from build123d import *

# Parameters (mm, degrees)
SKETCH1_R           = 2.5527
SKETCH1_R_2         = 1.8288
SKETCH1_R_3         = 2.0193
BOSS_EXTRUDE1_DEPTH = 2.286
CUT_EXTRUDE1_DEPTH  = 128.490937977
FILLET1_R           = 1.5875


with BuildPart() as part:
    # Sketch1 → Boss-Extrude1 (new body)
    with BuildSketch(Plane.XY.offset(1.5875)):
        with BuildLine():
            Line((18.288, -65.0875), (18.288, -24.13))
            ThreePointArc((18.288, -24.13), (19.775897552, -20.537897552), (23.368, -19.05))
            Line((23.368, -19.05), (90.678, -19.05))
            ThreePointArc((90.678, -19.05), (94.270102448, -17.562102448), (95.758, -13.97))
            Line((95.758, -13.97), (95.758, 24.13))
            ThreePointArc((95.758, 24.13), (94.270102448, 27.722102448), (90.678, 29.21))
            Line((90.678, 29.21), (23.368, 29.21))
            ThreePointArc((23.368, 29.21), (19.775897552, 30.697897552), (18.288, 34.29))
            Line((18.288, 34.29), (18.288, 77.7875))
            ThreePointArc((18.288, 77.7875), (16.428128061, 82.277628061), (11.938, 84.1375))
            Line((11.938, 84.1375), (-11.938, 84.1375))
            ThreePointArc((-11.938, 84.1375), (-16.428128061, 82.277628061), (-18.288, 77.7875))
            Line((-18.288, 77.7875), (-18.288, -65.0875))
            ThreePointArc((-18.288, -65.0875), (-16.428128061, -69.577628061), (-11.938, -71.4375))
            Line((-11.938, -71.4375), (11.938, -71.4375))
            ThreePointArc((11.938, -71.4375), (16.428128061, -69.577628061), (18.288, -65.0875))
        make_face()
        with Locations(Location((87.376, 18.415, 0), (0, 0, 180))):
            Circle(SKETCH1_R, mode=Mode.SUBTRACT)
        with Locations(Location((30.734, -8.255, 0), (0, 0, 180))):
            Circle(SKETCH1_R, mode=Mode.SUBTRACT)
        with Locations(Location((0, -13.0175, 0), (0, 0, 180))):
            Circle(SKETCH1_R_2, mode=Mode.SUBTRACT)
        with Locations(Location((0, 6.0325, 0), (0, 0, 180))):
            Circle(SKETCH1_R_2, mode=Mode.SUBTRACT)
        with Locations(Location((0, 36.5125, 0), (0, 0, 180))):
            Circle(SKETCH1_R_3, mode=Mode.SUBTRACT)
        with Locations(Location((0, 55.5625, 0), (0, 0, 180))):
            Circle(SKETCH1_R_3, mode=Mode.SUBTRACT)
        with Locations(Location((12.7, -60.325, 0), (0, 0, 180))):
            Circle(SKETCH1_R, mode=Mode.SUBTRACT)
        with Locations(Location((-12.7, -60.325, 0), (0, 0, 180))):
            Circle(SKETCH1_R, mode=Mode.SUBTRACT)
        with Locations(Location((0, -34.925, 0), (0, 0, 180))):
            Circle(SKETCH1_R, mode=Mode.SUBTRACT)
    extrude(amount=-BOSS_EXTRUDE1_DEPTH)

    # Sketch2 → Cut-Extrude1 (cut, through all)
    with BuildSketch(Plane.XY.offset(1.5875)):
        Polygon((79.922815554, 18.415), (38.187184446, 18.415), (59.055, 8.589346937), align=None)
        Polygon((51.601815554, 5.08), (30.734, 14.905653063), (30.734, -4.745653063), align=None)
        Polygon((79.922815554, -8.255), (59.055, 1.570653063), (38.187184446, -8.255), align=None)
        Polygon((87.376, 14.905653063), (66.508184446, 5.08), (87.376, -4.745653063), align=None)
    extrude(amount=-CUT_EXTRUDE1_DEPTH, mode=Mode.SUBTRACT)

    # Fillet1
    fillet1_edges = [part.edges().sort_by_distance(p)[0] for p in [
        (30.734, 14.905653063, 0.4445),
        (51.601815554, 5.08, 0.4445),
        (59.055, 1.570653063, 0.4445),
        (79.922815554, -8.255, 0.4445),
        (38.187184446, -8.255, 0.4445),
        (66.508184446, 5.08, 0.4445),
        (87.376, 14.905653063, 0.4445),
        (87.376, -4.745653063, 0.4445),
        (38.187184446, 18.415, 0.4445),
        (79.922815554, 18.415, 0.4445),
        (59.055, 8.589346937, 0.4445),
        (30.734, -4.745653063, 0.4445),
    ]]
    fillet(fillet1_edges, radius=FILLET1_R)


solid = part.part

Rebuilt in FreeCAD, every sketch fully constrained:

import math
import FreeCAD as App
import Part
import Sketcher
Q = App.Units.Quantity


def edges_at(feature, points):
    """Names of the edges that pass closest to the given points."""
    edges = feature.Shape.Edges
    near = lambda p: min(range(len(edges)), key=lambda i: edges[i].distToShape(Part.Vertex(*p))[0])
    return sorted({f"Edge{near(p) + 1}" for p in points})


def add_polygon(sketch, points):
    """Adds a closed chain of lines whose ends are joined by coincident constraints."""
    first, n = sketch.GeometryCount, len(points)
    for a, b in zip(points, points[1:] + points[:1]):
        sketch.addGeometry(Part.LineSegment(App.Vector(*a, 0), App.Vector(*b, 0)), False)
    for i in range(n):
        sketch.addConstraint(Sketcher.Constraint("Coincident", first + i, 2, first + (i + 1) % n, 1))

doc = App.newDocument("Part")
body = doc.addObject("PartDesign::Body", "Body")

sketch1 = doc.addObject("Sketcher::SketchObject", "Sketch")
body.addObject(sketch1)
sketch1.AttachmentSupport = (doc.XY_Plane, [""])
sketch1.MapMode = "FlatFace"
sketch1.AttachmentOffset = App.Placement(App.Vector(0, 0, 0.0625 * 25.4), App.Rotation())
sketch1.addGeometry([
    Part.LineSegment(App.Vector(18.3, -65.1, 0), App.Vector(18.3, -24.1, 0)),
    Part.ArcOfCircle(Part.Circle(App.Vector(23.4, -24.1, 0), App.Vector(0, 0, 1), 5.1), math.radians(90), math.radians(180)),
    Part.LineSegment(App.Vector(23.4, -19.1, 0), App.Vector(90.7, -19.1, 0)),
    Part.ArcOfCircle(Part.Circle(App.Vector(90.7, -14, 0), App.Vector(0, 0, 1), 5.1), math.radians(-90), math.radians(0)),
    Part.LineSegment(App.Vector(95.8, -14, 0), App.Vector(95.8, 24.1, 0)),
    Part.ArcOfCircle(Part.Circle(App.Vector(90.7, 24.1, 0), App.Vector(0, 0, 1), 5.1), math.radians(0), math.radians(90)),
    Part.LineSegment(App.Vector(90.7, 29.2, 0), App.Vector(23.4, 29.2, 0)),
    Part.ArcOfCircle(Part.Circle(App.Vector(23.4, 34.3, 0), App.Vector(0, 0, 1), 5.1), math.radians(-180), math.radians(-90)),
    Part.LineSegment(App.Vector(18.3, 34.3, 0), App.Vector(18.3, 77.8, 0)),
    Part.ArcOfCircle(Part.Circle(App.Vector(11.9, 77.8, 0), App.Vector(0, 0, 1), 6.3), math.radians(0), math.radians(90)),
    Part.LineSegment(App.Vector(11.9, 84.1, 0), App.Vector(-11.9, 84.1, 0)),
    Part.ArcOfCircle(Part.Circle(App.Vector(-11.9, 77.8, 0), App.Vector(0, 0, 1), 6.3), math.radians(90), math.radians(180)),
    Part.LineSegment(App.Vector(-18.3, 77.8, 0), App.Vector(-18.3, -65.1, 0)),
    Part.ArcOfCircle(Part.Circle(App.Vector(-11.9, -65.1, 0), App.Vector(0, 0, 1), 6.3), math.radians(180), math.radians(270)),
    Part.LineSegment(App.Vector(-11.9, -71.4, 0), App.Vector(11.9, -71.4, 0)),
    Part.ArcOfCircle(Part.Circle(App.Vector(11.9, -65.1, 0), App.Vector(0, 0, 1), 6.3), math.radians(-90), math.radians(0)),
    Part.Circle(App.Vector(-12.7, -60.3, 0), App.Vector(0, 0, 1), 2.6),
    Part.Circle(App.Vector(0, -34.9, 0), App.Vector(0, 0, 1), 2.6),
    Part.Circle(App.Vector(12.7, -60.3, 0), App.Vector(0, 0, 1), 2.6),
    Part.Circle(App.Vector(0, -13, 0), App.Vector(0, 0, 1), 1.8),
    Part.Circle(App.Vector(30.7, -8.3, 0), App.Vector(0, 0, 1), 2.6),
    Part.Circle(App.Vector(0, 6, 0), App.Vector(0, 0, 1), 1.8),
    Part.Circle(App.Vector(0, 36.5, 0), App.Vector(0, 0, 1), 2),
    Part.Circle(App.Vector(0, 55.6, 0), App.Vector(0, 0, 1), 2),
    Part.Circle(App.Vector(87.4, 18.4, 0), App.Vector(0, 0, 1), 2.6),
], False)
sketch1.addConstraint([
    Sketcher.Constraint("Tangent", 0, 2, 1, 2),
    Sketcher.Constraint("Tangent", 1, 1, 2, 1),
    Sketcher.Constraint("Tangent", 2, 2, 3, 1),
    Sketcher.Constraint("Tangent", 3, 2, 4, 1),
    Sketcher.Constraint("Tangent", 4, 2, 5, 1),
    Sketcher.Constraint("Tangent", 5, 2, 6, 1),
    Sketcher.Constraint("Tangent", 6, 2, 7, 2),
    Sketcher.Constraint("Tangent", 7, 1, 8, 1),
    Sketcher.Constraint("Tangent", 8, 2, 9, 1),
    Sketcher.Constraint("Tangent", 9, 2, 10, 1),
    Sketcher.Constraint("Tangent", 10, 2, 11, 1),
    Sketcher.Constraint("Tangent", 11, 2, 12, 1),
    Sketcher.Constraint("Tangent", 12, 2, 13, 1),
    Sketcher.Constraint("Tangent", 13, 2, 14, 1),
    Sketcher.Constraint("Tangent", 14, 2, 15, 1),
    Sketcher.Constraint("Tangent", 15, 2, 0, 1),
    Sketcher.Constraint("Vertical", 0),
    Sketcher.Constraint("Horizontal", 2),
    Sketcher.Constraint("Vertical", 4),
    Sketcher.Constraint("Horizontal", 6),
    Sketcher.Constraint("Vertical", 8),
    Sketcher.Constraint("Horizontal", 10),
    Sketcher.Constraint("Vertical", 12),
    Sketcher.Constraint("Horizontal", 14),
    Sketcher.Constraint("Equal", 1, 3),
    Sketcher.Constraint("Equal", 3, 5),
    Sketcher.Constraint("Equal", 5, 7),
    Sketcher.Constraint("Equal", 9, 11),
    Sketcher.Constraint("Equal", 11, 13),
    Sketcher.Constraint("Equal", 13, 15),
    Sketcher.Constraint("Equal", 16, 17),
    Sketcher.Constraint("Equal", 17, 18),
    Sketcher.Constraint("Equal", 18, 20),
    Sketcher.Constraint("Equal", 19, 21),
    Sketcher.Constraint("Equal", 22, 23),
    Sketcher.Constraint("Equal", 20, 24),
    Sketcher.Constraint("Symmetric", 16, 3, 18, 3, -2),
    Sketcher.Constraint("PointOnObject", 17, 3, -2),
    Sketcher.Constraint("PointOnObject", 19, 3, -2),
    Sketcher.Constraint("PointOnObject", 21, 3, -2),
    Sketcher.Constraint("PointOnObject", 22, 3, -2),
    Sketcher.Constraint("PointOnObject", 23, 3, -2),
    Sketcher.Constraint("Vertical", 1, 3, 7, 3),
    Sketcher.Constraint("Radius", 1, Q("0.2 in")),
    Sketcher.Constraint("Radius", 9, Q("0.25 in")),
    Sketcher.Constraint("Diameter", 16, Q("0.201 in")),
    Sketcher.Constraint("Diameter", 19, Q("0.144 in")),
    Sketcher.Constraint("Diameter", 22, Q("0.159 in")),
    Sketcher.Constraint("DistanceY", 4, 1, 4, 2, Q("1.5 in")),
    Sketcher.Constraint("DistanceY", 16, 3, 17, 3, Q("1 in")),
    Sketcher.Constraint("DistanceX", 16, 3, 18, 3, Q("1 in")),
    Sketcher.Constraint("DistanceX", 2, 1, 2, 2, Q("2.65 in")),
    Sketcher.Constraint("DistanceX", 10, 2, 10, 1, Q("0.94 in")),
    Sketcher.Constraint("DistanceY", 21, 3, 22, 3, Q("1.2 in")),
    Sketcher.Constraint("DistanceY", 12, 2, 12, 1, Q("5.625 in")),
    Sketcher.Constraint("DistanceX", -1, 1, 1, 3, Q("0.92 in")),
    Sketcher.Constraint("DistanceY", 1, 3, -1, 1, Q("0.95 in")),
    Sketcher.Constraint("DistanceX", -1, 1, 20, 3, Q("1.21 in")),
    Sketcher.Constraint("DistanceX", -1, 1, 24, 3, Q("3.44 in")),
    Sketcher.Constraint("DistanceY", 17, 3, 20, 3, Q("1.05 in")),
    Sketcher.Constraint("DistanceY", 19, 3, 21, 3, Q("0.75 in")),
    Sketcher.Constraint("DistanceY", 22, 3, 23, 3, Q("0.75 in")),
    Sketcher.Constraint("DistanceY", 20, 3, 24, 3, Q("1.05 in")),
    Sketcher.Constraint("DistanceY", 0, 1, 0, 2, Q("1.6125 in")),
    Sketcher.Constraint("DistanceY", 16, 3, -1, 1, Q("2.375 in")),
    Sketcher.Constraint("DistanceY", -1, 1, 22, 3, Q("1.4375 in")),
])
pad1 = doc.addObject("PartDesign::Pad", "Pad")
body.addObject(pad1)
pad1.Profile = sketch1
pad1.Length = Q("0.09 in")
pad1.Reversed = True

sketch2 = doc.addObject("Sketcher::SketchObject", "Sketch001")
body.addObject(sketch2)
sketch2.AttachmentSupport = (doc.XY_Plane, [""])
sketch2.MapMode = "FlatFace"
sketch2.AttachmentOffset = App.Placement(App.Vector(0, 0, 0.0625 * 25.4), App.Rotation())
add_polygon(sketch2, [(80, 18), (38, 18), (59, 9)])
add_polygon(sketch2, [(52, 5), (31, 15), (31, -5)])
add_polygon(sketch2, [(80, -8), (59, 2), (38, -8)])
add_polygon(sketch2, [(87, 15), (67, 5), (87, -5)])
sketch2.addConstraint([
    Sketcher.Constraint("Horizontal", 0),
    Sketcher.Constraint("Vertical", 4),
    Sketcher.Constraint("Horizontal", 8),
    Sketcher.Constraint("Vertical", 11),
    Sketcher.Constraint("Parallel", 1, 3),
    Sketcher.Constraint("Parallel", 2, 5),
    Sketcher.Constraint("Parallel", 3, 6),
    Sketcher.Constraint("Parallel", 5, 7),
    Sketcher.Constraint("Parallel", 7, 9),
    Sketcher.Constraint("Parallel", 6, 10),
    Sketcher.Constraint("Horizontal", 5, 2, 9, 2),
    Sketcher.Constraint("Horizontal", 4, 2, 10, 2),
    Sketcher.Constraint("Horizontal", 3, 2, 11, 2),
    Sketcher.Constraint("Vertical", 1, 2, 6, 2),
    Sketcher.Constraint("Vertical", 0, 2, 7, 2),
    Sketcher.Constraint("Equal", 2, 3),
    Sketcher.Constraint("DistanceY", -1, 1, 5, 2, Q("0.2 in")),
    Sketcher.Constraint("DistanceX", -1, 1, 3, 2, Q("1.21 in")),
    Sketcher.Constraint("DistanceX", -1, 1, 10, 2, Q("3.44 in")),
    Sketcher.Constraint("DistanceY", 7, 2, 0, 2, Q("1.05 in")),
    Sketcher.Constraint("DistanceY", -1, 1, 0, 2, Q("0.725 in")),
    Sketcher.Constraint("DistanceX", -1, 1, 1, 2, Q("2.325 in")),
    Sketcher.Constraint("DistanceX", 0, 2, 0, 1, 41.735631),
    Sketcher.Constraint("DistanceY", 4, 2, 4, 1, 19.651306),
])
pocket1 = doc.addObject("PartDesign::Pocket", "Pocket")
body.addObject(pocket1)
pocket1.Profile = sketch2
pocket1.Type = "ThroughAll"
doc.recompute()

fillet = doc.addObject("PartDesign::Fillet", "Fillet")
body.addObject(fillet)
fillet.Base = (pocket1, edges_at(pocket1, [
    (30.734, 14.906, 0.445),
    (51.602, 5.08, 0.445),
    (59.055, 1.571, 0.445),
    (79.923, -8.255, 0.445),
    (38.187, -8.255, 0.445),
    (66.508, 5.08, 0.445),
    (87.376, 14.906, 0.445),
    (87.376, -4.746, 0.445),
    (38.187, 18.415, 0.445),
    (79.923, 18.415, 0.445),
    (59.055, 8.589, 0.445),
    (30.734, -4.746, 0.445),
]))
fillet.Radius = Q("0.0625 in")

doc.recompute()
